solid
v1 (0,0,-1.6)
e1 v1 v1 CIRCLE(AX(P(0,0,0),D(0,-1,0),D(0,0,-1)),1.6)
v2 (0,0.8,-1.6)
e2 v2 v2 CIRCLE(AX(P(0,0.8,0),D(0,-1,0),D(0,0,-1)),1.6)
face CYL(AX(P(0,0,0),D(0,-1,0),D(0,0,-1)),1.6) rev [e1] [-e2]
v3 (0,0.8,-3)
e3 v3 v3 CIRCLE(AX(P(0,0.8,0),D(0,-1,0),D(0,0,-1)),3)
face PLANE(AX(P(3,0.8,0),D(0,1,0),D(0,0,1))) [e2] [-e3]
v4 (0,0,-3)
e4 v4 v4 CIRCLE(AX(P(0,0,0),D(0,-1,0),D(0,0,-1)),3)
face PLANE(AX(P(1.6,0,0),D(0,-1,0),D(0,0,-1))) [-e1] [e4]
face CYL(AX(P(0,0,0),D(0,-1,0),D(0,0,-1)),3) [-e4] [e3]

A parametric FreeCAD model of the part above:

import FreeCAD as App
import Part
import Sketcher
Q = App.Units.Quantity

doc = App.newDocument("Part")
body = doc.addObject("PartDesign::Body", "Body")

sketch1 = doc.addObject("Sketcher::SketchObject", "Sketch")
body.addObject(sketch1)
sketch1.AttachmentSupport = (doc.XY_Plane, [""])
sketch1.MapMode = "FlatFace"
sketch1.addGeometry(Part.LineSegment(App.Vector(1.6, 0.8, 0), App.Vector(1.6, 0, 0)), False)
sketch1.addGeometry(Part.LineSegment(App.Vector(1.6, 0, 0), App.Vector(3, 0, 0)), False)
sketch1.addGeometry(Part.LineSegment(App.Vector(3, 0, 0), App.Vector(3, 0.8, 0)), False)
sketch1.addGeometry(Part.LineSegment(App.Vector(3, 0.8, 0), App.Vector(1.6, 0.8, 0)), False)
sketch1.addConstraint(Sketcher.Constraint("Coincident", 0, 2, 1, 1))
sketch1.addConstraint(Sketcher.Constraint("Coincident", 1, 2, 2, 1))
sketch1.addConstraint(Sketcher.Constraint("Coincident", 2, 2, 3, 1))
sketch1.addConstraint(Sketcher.Constraint("Coincident", 3, 2, 0, 1))
sketch1.addConstraint(Sketcher.Constraint("Vertical", 0))
sketch1.addConstraint(Sketcher.Constraint("Horizontal", 1))
sketch1.addConstraint(Sketcher.Constraint("Vertical", 2))
sketch1.addConstraint(Sketcher.Constraint("Horizontal", 3))
sketch1.addConstraint(Sketcher.Constraint("PointOnObject", 0, 2, -1))
sketch1.addConstraint(Sketcher.Constraint("DistanceX", 1, 1, 1, 2, Q("1.4 mm")))
sketch1.addConstraint(Sketcher.Constraint("DistanceY", 0, 2, 0, 1, Q("0.8 mm")))
sketch1.addConstraint(Sketcher.Constraint("DistanceX", -1, 1, 1, 2, Q("3 mm")))
revolution = doc.addObject("PartDesign::Revolution", "Revolution")
body.addObject(revolution)
revolution.Profile = sketch1
revolution.ReferenceAxis = (sketch1, ["V_Axis"])
revolution.Angle = 360

doc.recompute()
